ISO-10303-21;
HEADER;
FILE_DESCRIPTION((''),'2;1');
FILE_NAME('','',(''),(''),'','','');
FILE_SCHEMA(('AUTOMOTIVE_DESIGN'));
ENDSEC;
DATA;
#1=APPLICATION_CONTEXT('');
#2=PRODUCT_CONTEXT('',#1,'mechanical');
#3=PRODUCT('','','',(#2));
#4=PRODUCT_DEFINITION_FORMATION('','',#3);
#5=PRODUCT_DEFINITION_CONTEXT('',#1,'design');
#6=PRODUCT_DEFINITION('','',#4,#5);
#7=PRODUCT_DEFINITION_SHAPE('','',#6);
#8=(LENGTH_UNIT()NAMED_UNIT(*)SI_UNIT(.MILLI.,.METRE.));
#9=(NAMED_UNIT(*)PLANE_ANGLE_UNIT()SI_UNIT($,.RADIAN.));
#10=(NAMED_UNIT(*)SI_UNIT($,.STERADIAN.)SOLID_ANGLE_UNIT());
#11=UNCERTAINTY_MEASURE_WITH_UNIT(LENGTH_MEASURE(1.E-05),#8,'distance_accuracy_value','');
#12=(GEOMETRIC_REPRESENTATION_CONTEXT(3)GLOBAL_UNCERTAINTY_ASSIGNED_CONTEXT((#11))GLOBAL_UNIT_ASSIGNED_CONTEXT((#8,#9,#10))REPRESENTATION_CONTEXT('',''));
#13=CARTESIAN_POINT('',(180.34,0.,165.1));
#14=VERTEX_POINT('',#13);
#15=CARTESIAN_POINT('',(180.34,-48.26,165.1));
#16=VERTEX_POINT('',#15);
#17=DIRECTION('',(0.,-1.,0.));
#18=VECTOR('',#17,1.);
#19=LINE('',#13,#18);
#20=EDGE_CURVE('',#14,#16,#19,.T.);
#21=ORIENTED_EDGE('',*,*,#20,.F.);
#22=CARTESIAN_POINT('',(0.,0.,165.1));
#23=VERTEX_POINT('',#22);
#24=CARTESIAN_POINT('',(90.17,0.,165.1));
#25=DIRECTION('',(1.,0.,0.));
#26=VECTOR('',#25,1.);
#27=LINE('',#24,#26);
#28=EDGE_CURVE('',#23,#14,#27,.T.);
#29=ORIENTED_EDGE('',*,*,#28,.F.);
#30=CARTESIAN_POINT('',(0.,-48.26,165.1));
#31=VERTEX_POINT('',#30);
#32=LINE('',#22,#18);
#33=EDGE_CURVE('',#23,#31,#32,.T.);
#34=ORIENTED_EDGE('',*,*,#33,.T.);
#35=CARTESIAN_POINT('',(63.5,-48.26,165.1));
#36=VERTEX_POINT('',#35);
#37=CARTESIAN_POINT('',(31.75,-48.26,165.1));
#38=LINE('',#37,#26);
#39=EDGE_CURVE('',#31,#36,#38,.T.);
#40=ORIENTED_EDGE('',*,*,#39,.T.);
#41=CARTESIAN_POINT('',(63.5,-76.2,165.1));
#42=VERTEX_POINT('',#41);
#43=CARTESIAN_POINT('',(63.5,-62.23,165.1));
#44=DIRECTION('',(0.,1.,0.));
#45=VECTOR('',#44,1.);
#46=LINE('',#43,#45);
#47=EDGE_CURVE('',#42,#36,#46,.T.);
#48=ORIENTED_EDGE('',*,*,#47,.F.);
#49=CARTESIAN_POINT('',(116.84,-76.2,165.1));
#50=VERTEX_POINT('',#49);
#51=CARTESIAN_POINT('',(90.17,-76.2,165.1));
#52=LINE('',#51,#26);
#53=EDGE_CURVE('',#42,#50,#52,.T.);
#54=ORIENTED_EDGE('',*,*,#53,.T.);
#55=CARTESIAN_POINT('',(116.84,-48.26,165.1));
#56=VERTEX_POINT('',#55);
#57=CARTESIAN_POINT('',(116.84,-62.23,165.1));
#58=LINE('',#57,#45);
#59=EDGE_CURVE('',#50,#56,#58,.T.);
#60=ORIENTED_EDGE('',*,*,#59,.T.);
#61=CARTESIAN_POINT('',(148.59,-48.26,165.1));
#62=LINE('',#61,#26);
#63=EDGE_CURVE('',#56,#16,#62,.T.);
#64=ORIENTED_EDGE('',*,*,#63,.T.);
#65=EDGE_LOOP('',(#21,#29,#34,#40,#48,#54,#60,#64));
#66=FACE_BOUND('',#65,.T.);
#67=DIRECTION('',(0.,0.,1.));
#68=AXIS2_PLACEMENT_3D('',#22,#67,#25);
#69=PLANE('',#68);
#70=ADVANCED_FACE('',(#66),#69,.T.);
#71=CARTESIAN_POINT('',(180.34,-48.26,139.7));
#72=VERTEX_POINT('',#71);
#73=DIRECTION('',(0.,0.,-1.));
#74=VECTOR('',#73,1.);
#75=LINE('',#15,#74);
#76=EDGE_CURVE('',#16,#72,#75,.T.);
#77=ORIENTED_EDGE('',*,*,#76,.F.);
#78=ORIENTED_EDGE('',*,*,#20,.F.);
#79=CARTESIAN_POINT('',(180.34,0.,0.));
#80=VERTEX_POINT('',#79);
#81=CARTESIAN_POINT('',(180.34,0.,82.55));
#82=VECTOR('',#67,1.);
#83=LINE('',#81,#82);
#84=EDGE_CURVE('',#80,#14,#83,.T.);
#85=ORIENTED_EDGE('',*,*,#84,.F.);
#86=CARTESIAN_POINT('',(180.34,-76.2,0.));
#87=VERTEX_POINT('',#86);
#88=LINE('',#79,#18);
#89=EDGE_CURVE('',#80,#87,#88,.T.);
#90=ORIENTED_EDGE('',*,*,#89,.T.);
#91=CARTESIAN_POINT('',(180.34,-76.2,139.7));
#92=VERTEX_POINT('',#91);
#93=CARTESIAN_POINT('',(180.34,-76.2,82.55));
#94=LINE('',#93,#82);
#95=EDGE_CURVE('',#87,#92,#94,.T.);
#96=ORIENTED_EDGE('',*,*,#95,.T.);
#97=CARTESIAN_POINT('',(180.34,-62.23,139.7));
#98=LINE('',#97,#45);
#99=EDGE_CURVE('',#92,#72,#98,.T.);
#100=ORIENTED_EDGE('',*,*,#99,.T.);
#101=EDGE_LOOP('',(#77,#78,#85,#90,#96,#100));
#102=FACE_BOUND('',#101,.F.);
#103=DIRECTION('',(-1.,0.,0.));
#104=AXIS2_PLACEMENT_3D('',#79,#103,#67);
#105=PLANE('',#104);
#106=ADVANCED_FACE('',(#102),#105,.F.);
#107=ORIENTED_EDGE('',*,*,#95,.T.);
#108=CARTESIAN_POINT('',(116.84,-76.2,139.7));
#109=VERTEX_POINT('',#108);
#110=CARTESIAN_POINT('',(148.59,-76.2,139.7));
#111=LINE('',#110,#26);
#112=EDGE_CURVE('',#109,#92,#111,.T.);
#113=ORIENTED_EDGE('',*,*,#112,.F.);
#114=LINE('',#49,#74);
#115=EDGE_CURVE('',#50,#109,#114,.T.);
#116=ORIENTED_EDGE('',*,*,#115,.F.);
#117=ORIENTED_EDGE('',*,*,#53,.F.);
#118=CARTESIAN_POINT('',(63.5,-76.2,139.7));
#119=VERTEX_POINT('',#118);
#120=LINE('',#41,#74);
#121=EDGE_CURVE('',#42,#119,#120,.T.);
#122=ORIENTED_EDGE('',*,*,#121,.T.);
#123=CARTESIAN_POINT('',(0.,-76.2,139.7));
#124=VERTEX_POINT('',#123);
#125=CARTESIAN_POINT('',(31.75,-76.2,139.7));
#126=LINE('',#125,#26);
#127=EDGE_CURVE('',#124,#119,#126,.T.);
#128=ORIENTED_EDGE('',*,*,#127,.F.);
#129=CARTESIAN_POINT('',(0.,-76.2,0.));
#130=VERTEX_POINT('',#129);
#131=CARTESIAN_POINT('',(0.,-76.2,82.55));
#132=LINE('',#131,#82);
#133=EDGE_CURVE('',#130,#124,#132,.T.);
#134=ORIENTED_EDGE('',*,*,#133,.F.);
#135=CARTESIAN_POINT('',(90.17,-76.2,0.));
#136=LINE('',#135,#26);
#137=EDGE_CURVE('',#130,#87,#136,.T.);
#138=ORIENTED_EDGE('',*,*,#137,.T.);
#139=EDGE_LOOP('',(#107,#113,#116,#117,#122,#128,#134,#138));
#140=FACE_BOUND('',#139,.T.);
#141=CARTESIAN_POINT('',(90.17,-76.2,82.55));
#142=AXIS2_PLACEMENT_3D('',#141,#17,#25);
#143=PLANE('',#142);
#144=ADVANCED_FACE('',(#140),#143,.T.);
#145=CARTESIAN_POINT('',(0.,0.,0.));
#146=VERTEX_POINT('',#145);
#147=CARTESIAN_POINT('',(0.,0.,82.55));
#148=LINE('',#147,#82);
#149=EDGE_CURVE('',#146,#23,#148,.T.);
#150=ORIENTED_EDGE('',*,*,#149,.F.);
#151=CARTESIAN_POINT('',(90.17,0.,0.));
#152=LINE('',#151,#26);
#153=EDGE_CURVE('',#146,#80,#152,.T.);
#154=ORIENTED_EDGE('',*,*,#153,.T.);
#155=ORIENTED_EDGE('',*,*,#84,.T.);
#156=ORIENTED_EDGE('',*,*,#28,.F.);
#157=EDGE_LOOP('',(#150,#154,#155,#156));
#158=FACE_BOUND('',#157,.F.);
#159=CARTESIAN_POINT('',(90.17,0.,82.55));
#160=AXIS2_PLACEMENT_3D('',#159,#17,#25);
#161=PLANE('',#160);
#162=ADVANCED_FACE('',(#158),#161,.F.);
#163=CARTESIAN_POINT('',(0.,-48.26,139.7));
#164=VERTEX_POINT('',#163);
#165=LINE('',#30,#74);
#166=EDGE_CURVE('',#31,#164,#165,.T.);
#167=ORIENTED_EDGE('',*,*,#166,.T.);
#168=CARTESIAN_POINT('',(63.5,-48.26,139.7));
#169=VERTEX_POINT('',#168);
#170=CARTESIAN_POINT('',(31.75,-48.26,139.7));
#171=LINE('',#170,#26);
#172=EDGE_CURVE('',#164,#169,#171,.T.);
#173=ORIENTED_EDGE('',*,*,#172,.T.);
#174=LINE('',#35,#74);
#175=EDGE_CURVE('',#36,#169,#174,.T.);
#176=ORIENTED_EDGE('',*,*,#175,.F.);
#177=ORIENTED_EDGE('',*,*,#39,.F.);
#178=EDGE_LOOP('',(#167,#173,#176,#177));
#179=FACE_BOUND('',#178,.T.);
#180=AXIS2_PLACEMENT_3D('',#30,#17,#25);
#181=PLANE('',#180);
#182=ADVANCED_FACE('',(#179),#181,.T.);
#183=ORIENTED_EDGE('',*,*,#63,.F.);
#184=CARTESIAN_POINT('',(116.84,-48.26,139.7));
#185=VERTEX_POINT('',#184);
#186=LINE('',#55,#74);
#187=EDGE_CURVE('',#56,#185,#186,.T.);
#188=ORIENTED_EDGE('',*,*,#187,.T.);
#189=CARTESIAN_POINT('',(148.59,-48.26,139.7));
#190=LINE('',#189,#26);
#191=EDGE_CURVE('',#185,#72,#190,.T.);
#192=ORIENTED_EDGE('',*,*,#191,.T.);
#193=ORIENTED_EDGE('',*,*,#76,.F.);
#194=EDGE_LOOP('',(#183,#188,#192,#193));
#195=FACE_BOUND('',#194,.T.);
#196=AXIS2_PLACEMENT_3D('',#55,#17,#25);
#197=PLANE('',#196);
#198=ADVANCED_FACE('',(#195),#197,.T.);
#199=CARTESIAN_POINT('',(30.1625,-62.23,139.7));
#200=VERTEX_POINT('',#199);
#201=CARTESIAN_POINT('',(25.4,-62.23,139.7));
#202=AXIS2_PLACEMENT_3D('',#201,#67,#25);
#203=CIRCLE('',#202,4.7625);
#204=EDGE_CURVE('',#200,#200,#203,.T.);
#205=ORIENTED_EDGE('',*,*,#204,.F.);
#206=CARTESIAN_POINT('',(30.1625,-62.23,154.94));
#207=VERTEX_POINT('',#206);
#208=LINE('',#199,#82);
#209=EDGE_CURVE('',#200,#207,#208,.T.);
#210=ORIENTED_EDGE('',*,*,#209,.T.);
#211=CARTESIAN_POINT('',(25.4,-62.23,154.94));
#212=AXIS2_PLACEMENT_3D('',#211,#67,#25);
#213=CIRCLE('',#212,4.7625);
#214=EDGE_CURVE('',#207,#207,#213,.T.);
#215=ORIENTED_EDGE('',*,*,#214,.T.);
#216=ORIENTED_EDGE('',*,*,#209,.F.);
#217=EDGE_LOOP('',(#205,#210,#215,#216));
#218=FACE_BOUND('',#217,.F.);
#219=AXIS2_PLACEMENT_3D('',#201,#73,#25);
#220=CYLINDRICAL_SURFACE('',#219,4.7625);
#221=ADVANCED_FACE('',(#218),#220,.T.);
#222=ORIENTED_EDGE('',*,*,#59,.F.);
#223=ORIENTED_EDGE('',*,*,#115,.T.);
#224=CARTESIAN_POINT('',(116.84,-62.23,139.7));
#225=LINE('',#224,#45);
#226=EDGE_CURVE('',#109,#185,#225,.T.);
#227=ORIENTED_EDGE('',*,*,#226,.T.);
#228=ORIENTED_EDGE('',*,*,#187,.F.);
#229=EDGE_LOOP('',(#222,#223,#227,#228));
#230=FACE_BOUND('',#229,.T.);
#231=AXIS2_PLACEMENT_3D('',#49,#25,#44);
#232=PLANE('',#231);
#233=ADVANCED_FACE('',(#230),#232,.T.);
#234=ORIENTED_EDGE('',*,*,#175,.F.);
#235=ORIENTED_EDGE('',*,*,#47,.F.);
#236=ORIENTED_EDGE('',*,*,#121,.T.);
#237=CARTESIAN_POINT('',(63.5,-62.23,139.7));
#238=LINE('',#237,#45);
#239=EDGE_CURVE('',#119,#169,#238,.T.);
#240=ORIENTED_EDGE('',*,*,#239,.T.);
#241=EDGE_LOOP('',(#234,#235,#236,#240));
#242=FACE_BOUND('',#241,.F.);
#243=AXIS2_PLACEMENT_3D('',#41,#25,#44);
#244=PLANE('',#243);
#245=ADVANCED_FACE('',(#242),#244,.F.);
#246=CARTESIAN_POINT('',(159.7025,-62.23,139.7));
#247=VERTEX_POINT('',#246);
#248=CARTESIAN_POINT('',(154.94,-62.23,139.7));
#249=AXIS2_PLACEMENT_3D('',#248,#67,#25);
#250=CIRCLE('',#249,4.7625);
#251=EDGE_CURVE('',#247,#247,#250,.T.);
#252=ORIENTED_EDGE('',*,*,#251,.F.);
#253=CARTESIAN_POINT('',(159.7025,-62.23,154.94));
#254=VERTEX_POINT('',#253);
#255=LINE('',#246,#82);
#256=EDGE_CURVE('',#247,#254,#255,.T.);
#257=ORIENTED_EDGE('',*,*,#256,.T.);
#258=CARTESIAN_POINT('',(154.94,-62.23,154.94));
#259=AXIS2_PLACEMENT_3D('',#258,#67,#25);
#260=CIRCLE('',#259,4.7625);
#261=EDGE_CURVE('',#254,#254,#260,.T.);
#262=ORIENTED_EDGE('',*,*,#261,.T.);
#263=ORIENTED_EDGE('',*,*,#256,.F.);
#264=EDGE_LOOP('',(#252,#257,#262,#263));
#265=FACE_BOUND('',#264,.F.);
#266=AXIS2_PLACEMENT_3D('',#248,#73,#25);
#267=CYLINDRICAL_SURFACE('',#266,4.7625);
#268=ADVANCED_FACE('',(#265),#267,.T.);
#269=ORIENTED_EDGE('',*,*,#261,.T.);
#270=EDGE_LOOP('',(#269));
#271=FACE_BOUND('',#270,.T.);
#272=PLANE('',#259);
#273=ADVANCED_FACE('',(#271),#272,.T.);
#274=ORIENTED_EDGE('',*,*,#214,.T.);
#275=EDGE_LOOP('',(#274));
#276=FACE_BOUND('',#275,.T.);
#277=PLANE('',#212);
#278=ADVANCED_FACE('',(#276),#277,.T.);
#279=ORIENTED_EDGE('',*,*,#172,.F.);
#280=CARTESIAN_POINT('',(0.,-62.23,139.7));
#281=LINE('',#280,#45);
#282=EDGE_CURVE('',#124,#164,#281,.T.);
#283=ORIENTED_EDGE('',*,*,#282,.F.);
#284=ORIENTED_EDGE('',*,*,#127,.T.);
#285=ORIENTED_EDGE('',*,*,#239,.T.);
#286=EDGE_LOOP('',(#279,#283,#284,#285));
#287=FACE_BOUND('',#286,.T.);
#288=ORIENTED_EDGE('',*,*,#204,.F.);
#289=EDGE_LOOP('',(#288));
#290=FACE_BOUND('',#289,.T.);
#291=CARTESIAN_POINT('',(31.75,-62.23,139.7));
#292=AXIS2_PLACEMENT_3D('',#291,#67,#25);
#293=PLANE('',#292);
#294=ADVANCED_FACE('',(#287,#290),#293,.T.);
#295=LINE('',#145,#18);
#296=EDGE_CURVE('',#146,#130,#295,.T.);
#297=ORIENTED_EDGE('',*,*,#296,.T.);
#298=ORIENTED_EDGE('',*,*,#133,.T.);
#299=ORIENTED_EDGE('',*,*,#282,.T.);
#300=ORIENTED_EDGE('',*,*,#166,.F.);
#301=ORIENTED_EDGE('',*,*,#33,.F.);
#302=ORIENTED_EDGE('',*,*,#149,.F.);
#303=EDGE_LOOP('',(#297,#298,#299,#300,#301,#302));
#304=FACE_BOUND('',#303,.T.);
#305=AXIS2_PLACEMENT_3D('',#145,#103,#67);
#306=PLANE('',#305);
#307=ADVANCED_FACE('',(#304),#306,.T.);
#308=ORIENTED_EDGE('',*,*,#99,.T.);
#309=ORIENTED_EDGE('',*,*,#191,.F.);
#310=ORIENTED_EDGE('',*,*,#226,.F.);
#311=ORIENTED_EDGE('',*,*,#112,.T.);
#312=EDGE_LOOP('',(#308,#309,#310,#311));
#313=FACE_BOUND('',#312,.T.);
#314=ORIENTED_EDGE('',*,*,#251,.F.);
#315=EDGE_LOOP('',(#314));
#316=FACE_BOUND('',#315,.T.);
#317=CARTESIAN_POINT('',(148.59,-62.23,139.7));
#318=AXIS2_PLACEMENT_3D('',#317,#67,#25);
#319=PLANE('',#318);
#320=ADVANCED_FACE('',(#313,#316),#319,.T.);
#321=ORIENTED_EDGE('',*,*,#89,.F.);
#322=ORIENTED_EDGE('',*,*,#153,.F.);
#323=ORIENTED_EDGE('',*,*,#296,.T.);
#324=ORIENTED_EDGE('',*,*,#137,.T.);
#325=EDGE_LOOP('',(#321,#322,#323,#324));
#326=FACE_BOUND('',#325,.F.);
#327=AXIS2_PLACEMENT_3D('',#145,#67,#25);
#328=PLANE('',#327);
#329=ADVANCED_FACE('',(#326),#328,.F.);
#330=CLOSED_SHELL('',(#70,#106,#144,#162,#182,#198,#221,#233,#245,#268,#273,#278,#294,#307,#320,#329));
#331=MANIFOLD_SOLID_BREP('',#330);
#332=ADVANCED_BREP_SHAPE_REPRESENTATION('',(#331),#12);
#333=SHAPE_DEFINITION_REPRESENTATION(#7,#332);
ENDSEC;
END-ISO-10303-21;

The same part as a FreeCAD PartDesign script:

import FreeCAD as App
import Part
import Sketcher

V = App.Vector
Q = App.Units.Quantity

doc = App.newDocument("Part")
body = doc.addObject("PartDesign::Body", "Body")

# Sketch on XZ plane
sketch1 = doc.addObject("Sketcher::SketchObject", "Sketch")
body.addObject(sketch1)
sketch1.AttachmentSupport = (doc.XZ_Plane, [""])
sketch1.MapMode = "FlatFace"
sketch1.addGeometry([
    Part.LineSegment(V(0, 165, 0), V(0, 0, 0)),
    Part.LineSegment(V(0, 0, 0), V(180, 0, 0)),
    Part.LineSegment(V(180, 0, 0), V(180, 165, 0)),
    Part.LineSegment(V(180, 165, 0), V(0, 165, 0)),
], False)
sketch1.addConstraint([
    Sketcher.Constraint("Coincident", 0, 2, 1, 1),
    Sketcher.Constraint("Coincident", 1, 2, 2, 1),
    Sketcher.Constraint("Coincident", 2, 2, 3, 1),
    Sketcher.Constraint("Coincident", 3, 2, 0, 1),
    Sketcher.Constraint("Vertical", 0),
    Sketcher.Constraint("Horizontal", 1),
    Sketcher.Constraint("Vertical", 2),
    Sketcher.Constraint("Horizontal", 3),
    Sketcher.Constraint("Coincident", 0, 2, -1, 1),
    Sketcher.Constraint("DistanceX", 1, 1, 1, 2, Q("7.1 in")),
    Sketcher.Constraint("DistanceY", 0, 2, 0, 1, Q("6.5 in")),
])
pad1 = doc.addObject("PartDesign::Pad", "Pad")
body.addObject(pad1)
pad1.Profile = sketch1
pad1.Length = Q("3 in")

# Sketch on XY plane
sketch2 = doc.addObject("Sketcher::SketchObject", "Sketch001")
body.addObject(sketch2)
sketch2.AttachmentSupport = (doc.XY_Plane, [""])
sketch2.MapMode = "FlatFace"
sketch2.AttachmentOffset = App.Placement(V(0, 0, 6.5 * 25.4), App.Rotation())
sketch2.addGeometry([
    Part.LineSegment(V(0, -48, 0), V(0, -76, 0)),
    Part.LineSegment(V(0, -76, 0), V(64, -76, 0)),
    Part.LineSegment(V(64, -76, 0), V(64, -48, 0)),
    Part.LineSegment(V(64, -48, 0), V(0, -48, 0)),
], False)
sketch2.addConstraint([
    Sketcher.Constraint("Coincident", 0, 2, 1, 1),
    Sketcher.Constraint("Coincident", 1, 2, 2, 1),
    Sketcher.Constraint("Coincident", 2, 2, 3, 1),
    Sketcher.Constraint("Coincident", 3, 2, 0, 1),
    Sketcher.Constraint("Vertical", 0),
    Sketcher.Constraint("Horizontal", 1),
    Sketcher.Constraint("Vertical", 2),
    Sketcher.Constraint("Horizontal", 3),
    Sketcher.Constraint("PointOnObject", 0, 2, -2),
    Sketcher.Constraint("DistanceX", 1, 1, 1, 2, Q("2.5 in")),
    Sketcher.Constraint("DistanceY", 0, 2, 0, 1, Q("1.1 in")),
    Sketcher.Constraint("DistanceY", 0, 2, -1, 1, Q("3 in")),
])
pocket1 = doc.addObject("PartDesign::Pocket", "Pocket")
body.addObject(pocket1)
pocket1.Profile = sketch2
pocket1.Length = Q("1 in")

# Sketch on XY plane
sketch3 = doc.addObject("Sketcher::SketchObject", "Sketch002")
body.addObject(sketch3)
sketch3.AttachmentSupport = (doc.XY_Plane, [""])
sketch3.MapMode = "FlatFace"
sketch3.AttachmentOffset = App.Placement(V(0, 0, 6.5 * 25.4), App.Rotation())
sketch3.addGeometry([
    Part.LineSegment(V(117, -48, 0), V(117, -76, 0)),
    Part.LineSegment(V(117, -76, 0), V(180, -76, 0)),
    Part.LineSegment(V(180, -76, 0), V(180, -48, 0)),
    Part.LineSegment(V(180, -48, 0), V(117, -48, 0)),
], False)
sketch3.addConstraint([
    Sketcher.Constraint("Coincident", 0, 2, 1, 1),
    Sketcher.Constraint("Coincident", 1, 2, 2, 1),
    Sketcher.Constraint("Coincident", 2, 2, 3, 1),
    Sketcher.Constraint("Coincident", 3, 2, 0, 1),
    Sketcher.Constraint("Vertical", 0),
    Sketcher.Constraint("Horizontal", 1),
    Sketcher.Constraint("Vertical", 2),
    Sketcher.Constraint("Horizontal", 3),
    Sketcher.Constraint("DistanceX", 1, 1, 1, 2, Q("2.5 in")),
    Sketcher.Constraint("DistanceY", 0, 2, 0, 1, Q("1.1 in")),
    Sketcher.Constraint("DistanceY", 0, 2, -1, 1, Q("3 in")),
    Sketcher.Constraint("DistanceX", -1, 1, 0, 2, Q("4.6 in")),
])
pocket2 = doc.addObject("PartDesign::Pocket", "Pocket001")
body.addObject(pocket2)
pocket2.Profile = sketch3
pocket2.Length = Q("1 in")

# Sketch on XY plane
sketch4 = doc.addObject("Sketcher::SketchObject", "Sketch003")
body.addObject(sketch4)
sketch4.AttachmentSupport = (doc.XY_Plane, [""])
sketch4.MapMode = "FlatFace"
sketch4.AttachmentOffset = App.Placement(V(0, 0, 5.5 * 25.4), App.Rotation())
sketch4.addGeometry(Part.Circle(V(25.4, -62.2, 0), V(0, 0, 1), 4.8), False)
sketch4.addConstraint([
    Sketcher.Constraint("Diameter", 0, Q("0.375 in")),
    Sketcher.Constraint("DistanceX", -1, 1, 0, 3, Q("1 in")),
    Sketcher.Constraint("DistanceY", 0, 3, -1, 1, Q("2.45 in")),
])
pad2 = doc.addObject("PartDesign::Pad", "Pad001")
body.addObject(pad2)
pad2.Profile = sketch4
pad2.Length = Q("0.6 in")

# Sketch on XY plane
sketch5 = doc.addObject("Sketcher::SketchObject", "Sketch004")
body.addObject(sketch5)
sketch5.AttachmentSupport = (doc.XY_Plane, [""])
sketch5.MapMode = "FlatFace"
sketch5.AttachmentOffset = App.Placement(V(0, 0, 5.5 * 25.4), App.Rotation())
sketch5.addGeometry(Part.Circle(V(154.9, -62.2, 0), V(0, 0, 1), 4.8), False)
sketch5.addConstraint([
    Sketcher.Constraint("Diameter", 0, Q("0.375 in")),
    Sketcher.Constraint("DistanceX", -1, 1, 0, 3, Q("6.1 in")),
    Sketcher.Constraint("DistanceY", 0, 3, -1, 1, Q("2.45 in")),
])
pad3 = doc.addObject("PartDesign::Pad", "Pad002")
body.addObject(pad3)
pad3.Profile = sketch5
pad3.Length = Q("0.6 in")

doc.recompute()
